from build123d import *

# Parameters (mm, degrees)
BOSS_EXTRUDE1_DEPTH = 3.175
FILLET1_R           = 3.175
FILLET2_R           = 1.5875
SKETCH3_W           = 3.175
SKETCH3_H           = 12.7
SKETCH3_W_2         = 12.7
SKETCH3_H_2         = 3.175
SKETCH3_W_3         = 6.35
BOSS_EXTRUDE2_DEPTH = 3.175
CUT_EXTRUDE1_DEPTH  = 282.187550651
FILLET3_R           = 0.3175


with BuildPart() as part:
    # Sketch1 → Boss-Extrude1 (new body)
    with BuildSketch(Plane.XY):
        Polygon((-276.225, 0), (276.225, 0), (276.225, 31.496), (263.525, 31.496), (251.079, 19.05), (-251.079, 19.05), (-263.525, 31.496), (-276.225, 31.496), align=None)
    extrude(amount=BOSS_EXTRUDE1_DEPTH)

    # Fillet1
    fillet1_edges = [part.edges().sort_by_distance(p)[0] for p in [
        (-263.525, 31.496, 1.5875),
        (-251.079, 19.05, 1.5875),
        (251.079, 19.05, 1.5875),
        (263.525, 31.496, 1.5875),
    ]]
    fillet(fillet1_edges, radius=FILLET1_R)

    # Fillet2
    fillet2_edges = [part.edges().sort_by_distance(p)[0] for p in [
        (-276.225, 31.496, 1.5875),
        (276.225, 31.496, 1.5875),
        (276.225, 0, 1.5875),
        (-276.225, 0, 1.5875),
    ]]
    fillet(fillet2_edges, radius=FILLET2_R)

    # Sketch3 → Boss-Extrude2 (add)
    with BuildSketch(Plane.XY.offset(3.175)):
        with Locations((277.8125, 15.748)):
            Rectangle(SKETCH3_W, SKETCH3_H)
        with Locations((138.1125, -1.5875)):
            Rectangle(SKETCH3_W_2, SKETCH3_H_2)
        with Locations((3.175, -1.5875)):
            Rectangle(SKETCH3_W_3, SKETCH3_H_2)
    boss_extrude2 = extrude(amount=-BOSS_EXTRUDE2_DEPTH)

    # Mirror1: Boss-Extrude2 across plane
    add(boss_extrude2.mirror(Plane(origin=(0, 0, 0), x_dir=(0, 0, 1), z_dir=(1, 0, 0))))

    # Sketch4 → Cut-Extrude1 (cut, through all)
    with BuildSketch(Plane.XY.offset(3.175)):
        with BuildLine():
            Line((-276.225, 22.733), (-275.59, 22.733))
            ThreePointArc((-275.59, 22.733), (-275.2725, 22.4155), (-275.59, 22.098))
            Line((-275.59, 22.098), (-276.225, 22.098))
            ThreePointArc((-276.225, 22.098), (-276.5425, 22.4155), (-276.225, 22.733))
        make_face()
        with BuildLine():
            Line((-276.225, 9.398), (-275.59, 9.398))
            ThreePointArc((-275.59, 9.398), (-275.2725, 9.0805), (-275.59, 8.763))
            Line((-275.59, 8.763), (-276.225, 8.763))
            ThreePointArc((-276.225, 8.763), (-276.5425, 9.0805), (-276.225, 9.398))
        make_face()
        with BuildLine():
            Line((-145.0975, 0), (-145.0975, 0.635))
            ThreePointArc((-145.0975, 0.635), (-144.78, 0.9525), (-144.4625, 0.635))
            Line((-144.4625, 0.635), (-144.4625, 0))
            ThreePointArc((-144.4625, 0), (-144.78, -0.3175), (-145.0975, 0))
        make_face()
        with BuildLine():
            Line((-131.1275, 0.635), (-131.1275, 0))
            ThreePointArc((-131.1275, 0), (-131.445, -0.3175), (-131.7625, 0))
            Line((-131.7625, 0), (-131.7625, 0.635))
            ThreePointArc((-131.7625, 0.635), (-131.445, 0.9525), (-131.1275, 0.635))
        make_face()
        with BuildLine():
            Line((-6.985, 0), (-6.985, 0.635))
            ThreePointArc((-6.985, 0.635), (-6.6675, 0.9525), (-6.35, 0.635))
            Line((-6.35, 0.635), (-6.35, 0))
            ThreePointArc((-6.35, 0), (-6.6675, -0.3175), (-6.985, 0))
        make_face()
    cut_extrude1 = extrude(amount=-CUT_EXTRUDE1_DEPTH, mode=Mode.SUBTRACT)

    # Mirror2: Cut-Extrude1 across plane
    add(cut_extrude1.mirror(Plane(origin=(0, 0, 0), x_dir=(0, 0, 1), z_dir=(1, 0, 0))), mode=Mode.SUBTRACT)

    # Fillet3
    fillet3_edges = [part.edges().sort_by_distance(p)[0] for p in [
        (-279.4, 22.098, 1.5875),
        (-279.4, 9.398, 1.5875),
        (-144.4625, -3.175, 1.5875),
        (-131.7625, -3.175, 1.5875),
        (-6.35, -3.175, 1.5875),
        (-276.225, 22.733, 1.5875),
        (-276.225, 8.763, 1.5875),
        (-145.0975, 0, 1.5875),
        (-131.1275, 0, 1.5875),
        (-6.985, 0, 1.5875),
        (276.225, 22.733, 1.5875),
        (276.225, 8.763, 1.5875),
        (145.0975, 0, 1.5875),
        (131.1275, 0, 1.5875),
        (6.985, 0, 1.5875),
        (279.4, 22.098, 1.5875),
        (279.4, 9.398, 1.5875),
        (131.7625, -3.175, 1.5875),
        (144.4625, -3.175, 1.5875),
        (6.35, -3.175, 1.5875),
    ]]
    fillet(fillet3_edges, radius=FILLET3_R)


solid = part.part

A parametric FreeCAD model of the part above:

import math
import FreeCAD as App
import Part
import Sketcher
Q = App.Units.Quantity


def edges_at(feature, points):
    """Names of the edges that pass closest to the given points."""
    edges = feature.Shape.Edges
    near = lambda p: min(range(len(edges)), key=lambda i: edges[i].distToShape(Part.Vertex(*p))[0])
    return sorted({f"Edge{near(p) + 1}" for p in points})


def add_polygon(sketch, points):
    """Adds a closed chain of lines whose ends are joined by coincident constraints."""
    first, n = sketch.GeometryCount, len(points)
    for a, b in zip(points, points[1:] + points[:1]):
        sketch.addGeometry(Part.LineSegment(App.Vector(*a, 0), App.Vector(*b, 0)), False)
    for i in range(n):
        sketch.addConstraint(Sketcher.Constraint("Coincident", first + i, 2, first + (i + 1) % n, 1))

doc = App.newDocument("Part")
body = doc.addObject("PartDesign::Body", "Body")

sketch1 = body.newObject("Sketcher::SketchObject", "Sketch")
sketch1.AttachmentSupport = (doc.getObject("XY_Plane"), [""])
sketch1.MapMode = "FlatFace"
add_polygon(sketch1, [(-276, 0), (276, 0), (276, 31), (264, 31), (251, 19), (-251, 19), (-264, 31), (-276, 31)])
sketch1.addConstraint([
    Sketcher.Constraint("Horizontal", 0),
    Sketcher.Constraint("Vertical", 1),
    Sketcher.Constraint("Horizontal", 2),
    Sketcher.Constraint("Horizontal", 4),
    Sketcher.Constraint("Horizontal", 6),
    Sketcher.Constraint("Vertical", 7),
    Sketcher.Constraint("Symmetric", 0, 2, 7, 2, -1, 1),
    Sketcher.Constraint("Symmetric", 2, 2, 5, 2, -2),
    Sketcher.Constraint("Perpendicular", 3, 5),
    Sketcher.Constraint("Equal", 3, 5),
    Sketcher.Constraint("DistanceX", 2, 2, 2, 1, Q("0.5 in")),
    Sketcher.Constraint("DistanceX", 0, 1, 0, 2, Q("21.75 in")),
    Sketcher.Constraint("DistanceX", 4, 2, 4, 1, Q("19.77 in")),
    Sketcher.Constraint("DistanceY", 1, 1, 1, 2, Q("1.24 in")),
])
pad1 = body.newObject("PartDesign::Pad", "Pad")
pad1.Profile = sketch1
pad1.Length = Q("0.125 in")
doc.recompute()

fillet = body.newObject("PartDesign::Fillet", "Fillet")
fillet.Base = (pad1, edges_at(pad1, [
    (-263.525, 31.496, 1.587),
    (-251.079, 19.05, 1.587),
    (251.079, 19.05, 1.587),
    (263.525, 31.496, 1.587),
]))
fillet.Radius = Q("0.125 in")
doc.recompute()

fillet2 = body.newObject("PartDesign::Fillet", "Fillet001")
fillet2.Base = (fillet, edges_at(fillet, [
    (-276.225, 31.496, 1.587),
    (276.225, 31.496, 1.587),
    (276.225, 0, 1.587),
    (-276.225, 0, 1.587),
]))
fillet2.Radius = Q("0.0625 in")

sketch2 = body.newObject("Sketcher::SketchObject", "Sketch001")
sketch2.AttachmentSupport = (doc.getObject("XY_Plane"), [""])
sketch2.MapMode = "FlatFace"
sketch2.AttachmentOffset = App.Placement(App.Vector(0, 0, 0.125 * 25.4), App.Rotation())
add_polygon(sketch2, [(276.2, 22.1), (276.2, 9.4), (279.4, 9.4), (279.4, 22.1)])
add_polygon(sketch2, [(131.8, 0), (131.8, -3.2), (144.5, -3.2), (144.5, 0)])
add_polygon(sketch2, [(0, 0), (0, -3.2), (6.3, -3.2), (6.3, 0)])
sketch2.addConstraint([
    Sketcher.Constraint("Vertical", 0),
    Sketcher.Constraint("Horizontal", 1),
    Sketcher.Constraint("Vertical", 2),
    Sketcher.Constraint("Horizontal", 3),
    Sketcher.Constraint("Vertical", 4),
    Sketcher.Constraint("Horizontal", 5),
    Sketcher.Constraint("Vertical", 6),
    Sketcher.Constraint("Horizontal", 7),
    Sketcher.Constraint("Vertical", 8),
    Sketcher.Constraint("Horizontal", 9),
    Sketcher.Constraint("Vertical", 10),
    Sketcher.Constraint("Horizontal", 11),
    Sketcher.Constraint("Coincident", 11, 2, -1, 1),
    Sketcher.Constraint("PointOnObject", 6, 2, -1),
    Sketcher.Constraint("Horizontal", 5, 2, 8, 2),
    Sketcher.Constraint("Equal", 7, 0),
    Sketcher.Constraint("Equal", 3, 4),
    Sketcher.Constraint("DistanceX", 5, 1, 5, 2, Q("0.5 in")),
    Sketcher.Constraint("DistanceX", -1, 1, 1, 2, Q("11 in")),
    Sketcher.Constraint("DistanceX", 9, 1, 9, 2, Q("0.25 in")),
    Sketcher.Constraint("DistanceX", 1, 1, 1, 2, Q("0.125 in")),
    Sketcher.Constraint("DistanceY", -1, 1, 0, 2, Q("0.37 in")),
    Sketcher.Constraint("DistanceX", -1, 1, 4, 2, Q("5.1875 in")),
])
pad2 = body.newObject("PartDesign::Pad", "Pad001")
pad2.Profile = sketch2
pad2.Length = Q("0.125 in")
pad2.Reversed = True
doc.recompute()

mirrored = body.newObject("PartDesign::Mirrored", "Mirrored")
mirrored.Originals = [pad2]
mirrored.MirrorPlane = (doc.getObject("YZ_Plane"), [""])
body.Tip = mirrored

sketch3 = body.newObject("Sketcher::SketchObject", "Sketch002")
sketch3.AttachmentSupport = (doc.getObject("XY_Plane"), [""])
sketch3.MapMode = "FlatFace"
sketch3.AttachmentOffset = App.Placement(App.Vector(0, 0, 0.125 * 25.4), App.Rotation())
sketch3.addGeometry([
    Part.LineSegment(App.Vector(-275.59, 22.73, 0), App.Vector(-276.23, 22.73, 0)),
    Part.ArcOfCircle(Part.Circle(App.Vector(-276.23, 22.42, 0), App.Vector(0, 0, 1), 0.32), math.radians(90), math.radians(270)),
    Part.LineSegment(App.Vector(-276.23, 22.1, 0), App.Vector(-275.59, 22.1, 0)),
    Part.ArcOfCircle(Part.Circle(App.Vector(-275.59, 22.42, 0), App.Vector(0, 0, 1), 0.32), math.radians(-90), math.radians(90)),
    Part.LineSegment(App.Vector(-275.59, 9.4, 0), App.Vector(-276.23, 9.4, 0)),
    Part.ArcOfCircle(Part.Circle(App.Vector(-276.23, 9.08, 0), App.Vector(0, 0, 1), 0.32), math.radians(90), math.radians(270)),
    Part.LineSegment(App.Vector(-276.23, 8.76, 0), App.Vector(-275.59, 8.76, 0)),
    Part.ArcOfCircle(Part.Circle(App.Vector(-275.59, 9.08, 0), App.Vector(0, 0, 1), 0.32), math.radians(-90), math.radians(90)),
    Part.LineSegment(App.Vector(-145.1, 0.64, 0), App.Vector(-145.1, 0, 0)),
    Part.ArcOfCircle(Part.Circle(App.Vector(-144.78, 0, 0), App.Vector(0, 0, 1), 0.32), math.radians(180), math.radians(360)),
    Part.LineSegment(App.Vector(-144.46, 0, 0), App.Vector(-144.46, 0.64, 0)),
    Part.ArcOfCircle(Part.Circle(App.Vector(-144.78, 0.64, 0), App.Vector(0, 0, 1), 0.32), math.radians(0), math.radians(180)),
    Part.LineSegment(App.Vector(-131.13, 0, 0), App.Vector(-131.13, 0.64, 0)),
    Part.ArcOfCircle(Part.Circle(App.Vector(-131.44, 0.64, 0), App.Vector(0, 0, 1), 0.32), math.radians(0), math.radians(180)),
    Part.LineSegment(App.Vector(-131.76, 0.64, 0), App.Vector(-131.76, 0, 0)),
    Part.ArcOfCircle(Part.Circle(App.Vector(-131.44, 0, 0), App.Vector(0, 0, 1), 0.32), math.radians(180), math.radians(360)),
    Part.LineSegment(App.Vector(-6.99, 0.64, 0), App.Vector(-6.99, 0, 0)),
    Part.ArcOfCircle(Part.Circle(App.Vector(-6.67, 0, 0), App.Vector(0, 0, 1), 0.32), math.radians(180), math.radians(360)),
    Part.LineSegment(App.Vector(-6.35, 0, 0), App.Vector(-6.35, 0.64, 0)),
    Part.ArcOfCircle(Part.Circle(App.Vector(-6.67, 0.64, 0), App.Vector(0, 0, 1), 0.32), math.radians(0), math.radians(180)),
], False)
sketch3.addConstraint([
    Sketcher.Constraint("Tangent", 0, 2, 1, 1),
    Sketcher.Constraint("Tangent", 1, 2, 2, 1),
    Sketcher.Constraint("Tangent", 2, 2, 3, 1),
    Sketcher.Constraint("Tangent", 3, 2, 0, 1),
    Sketcher.Constraint("Tangent", 4, 2, 5, 1),
    Sketcher.Constraint("Tangent", 5, 2, 6, 1),
    Sketcher.Constraint("Tangent", 6, 2, 7, 1),
    Sketcher.Constraint("Tangent", 7, 2, 4, 1),
    Sketcher.Constraint("Tangent", 8, 2, 9, 1),
    Sketcher.Constraint("Tangent", 9, 2, 10, 1),
    Sketcher.Constraint("Tangent", 10, 2, 11, 1),
    Sketcher.Constraint("Tangent", 11, 2, 8, 1),
    Sketcher.Constraint("Tangent", 12, 2, 13, 1),
    Sketcher.Constraint("Tangent", 13, 2, 14, 1),
    Sketcher.Constraint("Tangent", 14, 2, 15, 1),
    Sketcher.Constraint("Tangent", 15, 2, 12, 1),
    Sketcher.Constraint("Tangent", 16, 2, 17, 1),
    Sketcher.Constraint("Tangent", 17, 2, 18, 1),
    Sketcher.Constraint("Tangent", 18, 2, 19, 1),
    Sketcher.Constraint("Tangent", 19, 2, 16, 1),
    Sketcher.Constraint("Horizontal", 0),
    Sketcher.Constraint("Horizontal", 2),
    Sketcher.Constraint("Horizontal", 4),
    Sketcher.Constraint("Horizontal", 6),
    Sketcher.Constraint("Vertical", 8),
    Sketcher.Constraint("Vertical", 10),
    Sketcher.Constraint("Vertical", 12),
    Sketcher.Constraint("Vertical", 14),
    Sketcher.Constraint("Vertical", 16),
    Sketcher.Constraint("Vertical", 18),
    Sketcher.Constraint("Equal", 3, 5),
    Sketcher.Constraint("Equal", 7, 9),
    Sketcher.Constraint("Equal", 11, 13),
    Sketcher.Constraint("Equal", 15, 17),
    Sketcher.Constraint("PointOnObject", 9, 3, -1),
    Sketcher.Constraint("PointOnObject", 15, 3, -1),
    Sketcher.Constraint("PointOnObject", 17, 3, -1),
    Sketcher.Constraint("Horizontal", 11, 3, 13, 3),
    Sketcher.Constraint("Horizontal", 13, 3, 19, 3),
    Sketcher.Constraint("Vertical", 1, 3, 5, 3),
    Sketcher.Constraint("Vertical", 3, 3, 7, 3),
    Sketcher.Constraint("Equal", 6, 8),
    Sketcher.Constraint("DistanceX", 9, 3, -1, 1, Q("5.7 in")),
    Sketcher.Constraint("Radius", 1, Q("0.0125 in")),
    Sketcher.Constraint("DistanceX", 5, 3, 13, 3, Q("5.7 in")),
    Sketcher.Constraint("DistanceY", 4, 2, 1, 2, Q("0.5 in")),
    Sketcher.Constraint("DistanceX", 10, 2, 13, 2, Q("0.5 in")),
    Sketcher.Constraint("DistanceX", 15, 3, 16, 2, Q("4.9 in")),
    Sketcher.Constraint("DistanceX", 0, 2, 0, 1, Q("0.025 in")),
    Sketcher.Constraint("DistanceY", -1, 1, 1, 2, Q("0.87 in")),
])
pocket1 = body.newObject("PartDesign::Pocket", "Pocket")
pocket1.Profile = sketch3
pocket1.Type = "ThroughAll"
doc.recompute()

mirrored2 = body.newObject("PartDesign::Mirrored", "Mirrored001")
mirrored2.Originals = [pocket1]
mirrored2.MirrorPlane = (doc.getObject("YZ_Plane"), [""])
body.Tip = mirrored2
doc.recompute()

fillet3 = body.newObject("PartDesign::Fillet", "Fillet002")
fillet3.Base = (mirrored2, edges_at(mirrored2, [
    (-279.4, 22.098, 1.587),
    (-279.4, 9.398, 1.587),
    (-144.463, -3.175, 1.587),
    (-131.762, -3.175, 1.587),
    (-6.35, -3.175, 1.587),
    (-276.225, 22.733, 1.587),
    (-276.225, 8.763, 1.587),
    (-145.097, 0, 1.587),
    (-131.127, 0, 1.587),
    (-6.985, 0, 1.587),
    (276.225, 22.733, 1.587),
    (276.225, 8.763, 1.587),
    (145.097, 0, 1.587),
    (131.127, 0, 1.587),
    (6.985, 0, 1.587),
    (279.4, 22.098, 1.587),
    (279.4, 9.398, 1.587),
    (131.762, -3.175, 1.587),
    (144.463, -3.175, 1.587),
    (6.35, -3.175, 1.587),
]))
fillet3.Radius = Q("0.0125 in")

doc.recompute()
